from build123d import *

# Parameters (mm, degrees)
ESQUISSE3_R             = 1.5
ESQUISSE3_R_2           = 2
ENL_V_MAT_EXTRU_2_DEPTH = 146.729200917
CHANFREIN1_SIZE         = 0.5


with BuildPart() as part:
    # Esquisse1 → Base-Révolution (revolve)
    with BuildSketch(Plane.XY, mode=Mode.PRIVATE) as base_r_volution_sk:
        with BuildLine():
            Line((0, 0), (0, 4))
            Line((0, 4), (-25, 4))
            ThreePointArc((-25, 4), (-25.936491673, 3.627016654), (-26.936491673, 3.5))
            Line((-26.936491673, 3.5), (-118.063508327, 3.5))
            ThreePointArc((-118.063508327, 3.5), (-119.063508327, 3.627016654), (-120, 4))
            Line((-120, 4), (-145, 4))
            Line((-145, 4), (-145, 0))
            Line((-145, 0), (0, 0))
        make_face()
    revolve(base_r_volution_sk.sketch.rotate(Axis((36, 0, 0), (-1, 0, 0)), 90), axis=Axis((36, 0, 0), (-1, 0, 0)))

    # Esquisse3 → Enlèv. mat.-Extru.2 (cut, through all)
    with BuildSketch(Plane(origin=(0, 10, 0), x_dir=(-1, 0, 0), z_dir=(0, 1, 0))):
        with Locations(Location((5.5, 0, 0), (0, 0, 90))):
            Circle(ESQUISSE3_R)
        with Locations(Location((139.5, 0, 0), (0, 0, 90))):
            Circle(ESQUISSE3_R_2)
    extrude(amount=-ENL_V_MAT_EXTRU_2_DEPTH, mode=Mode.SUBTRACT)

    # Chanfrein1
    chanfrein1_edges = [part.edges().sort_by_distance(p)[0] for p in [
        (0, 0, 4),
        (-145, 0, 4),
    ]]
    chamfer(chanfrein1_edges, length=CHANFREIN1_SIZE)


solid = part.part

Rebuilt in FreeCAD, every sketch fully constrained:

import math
import FreeCAD as App
import Part
import Sketcher

V = App.Vector
Q = App.Units.Quantity


def edges_at(feature, points):
    """Names of the edges that pass closest to the given points."""
    edges = feature.Shape.Edges
    near = lambda p: min(range(len(edges)), key=lambda i: edges[i].distToShape(Part.Vertex(*p))[0])
    return sorted({f"Edge{near(p) + 1}" for p in points})

doc = App.newDocument("Part")
body = doc.addObject("PartDesign::Body", "Body")

# Sketch on XY plane
sketch1 = body.newObject("Sketcher::SketchObject", "Sketch")
sketch1.AttachmentSupport = (doc.getObject("XY_Plane"), [""])
sketch1.MapMode = "FlatFace"
sketch1.addGeometry([
    Part.LineSegment(V(0, 0, 0), V(0, 4, 0)),  # 0
    Part.LineSegment(V(0, 4, 0), V(-25, 4, 0)),  # 1
    Part.ArcOfCircle(Part.Circle(V(-26.936492, 7.5, 0), V(0, 0, 1), 4), math.radians(-90), math.radians(-61.044976)),  # 2
    Part.LineSegment(V(-26.936492, 3.5, 0), V(-118.063508, 3.5, 0)),  # 3
    Part.ArcOfCircle(Part.Circle(V(-118.063508, 7.5, 0), V(0, 0, 1), 4), math.radians(-118.955024), math.radians(-90)),  # 4
    Part.LineSegment(V(-120, 4, 0), V(-145, 4, 0)),  # 5
    Part.LineSegment(V(-145, 4, 0), V(-145, 0, 0)),  # 6
    Part.LineSegment(V(-145, 0, 0), V(0, 0, 0)),  # 7
], False)
sketch1.addConstraint([
    Sketcher.Constraint("Coincident", 0, 2, 1, 1),
    Sketcher.Constraint("Coincident", 1, 2, 2, 2),
    Sketcher.Constraint("Tangent", 2, 1, 3, 1),
    Sketcher.Constraint("Tangent", 3, 2, 4, 2),
    Sketcher.Constraint("Coincident", 4, 1, 5, 1),
    Sketcher.Constraint("Coincident", 5, 2, 6, 1),
    Sketcher.Constraint("Coincident", 6, 2, 7, 1),
    Sketcher.Constraint("Coincident", 7, 2, 0, 1),
    Sketcher.Constraint("Vertical", 0),
    Sketcher.Constraint("Horizontal", 1),
    Sketcher.Constraint("Horizontal", 3),
    Sketcher.Constraint("Horizontal", 5),
    Sketcher.Constraint("Vertical", 6),
    Sketcher.Constraint("Horizontal", 7),
    Sketcher.Constraint("Coincident", 7, 2, -1, 1),
    Sketcher.Constraint("Equal", 2, 4),
    Sketcher.Constraint("Horizontal", 1, 2, 4, 1),
    Sketcher.Constraint("Equal", 1, 5),
    Sketcher.Constraint("Radius", 2, Q("4 mm")),
    Sketcher.Constraint("DistanceX", 1, 2, 1, 1, Q("25 mm")),
    Sketcher.Constraint("DistanceX", 7, 1, 7, 2, Q("145 mm")),
    Sketcher.Constraint("DistanceY", 0, 1, 0, 2, Q("4 mm")),
    Sketcher.Constraint("DistanceY", -1, 1, 2, 3, Q("7.5 mm")),
])
revolution = body.newObject("PartDesign::Revolution", "Revolution")
revolution.Profile = sketch1
revolution.ReferenceAxis = (sketch1, ["H_Axis"])
revolution.Angle = 360

# Sketch on XZ plane
sketch2 = body.newObject("Sketcher::SketchObject", "Sketch001")
sketch2.AttachmentSupport = (doc.getObject("XZ_Plane"), [""])
sketch2.MapMode = "FlatFace"
sketch2.AttachmentOffset = App.Placement(V(0, 0, -10), App.Rotation())
sketch2.addGeometry([
    Part.Circle(V(-5.5, 0, 0), V(0, 0, 1), 1.5),
    Part.Circle(V(-139.5, 0, 0), V(0, 0, 1), 2),
], False)
sketch2.addConstraint([
    Sketcher.Constraint("PointOnObject", 0, 3, -1),
    Sketcher.Constraint("PointOnObject", 1, 3, -1),
    Sketcher.Constraint("Diameter", 0, Q("3 mm")),
    Sketcher.Constraint("Diameter", 1, Q("4 mm")),
    Sketcher.Constraint("DistanceX", 1, 3, 0, 3, Q("134 mm")),
    Sketcher.Constraint("DistanceX", 0, 3, -1, 1, Q("5.5 mm")),
])
pocket1 = body.newObject("PartDesign::Pocket", "Pocket")
pocket1.Profile = sketch2
pocket1.Type = "ThroughAll"
pocket1.Reversed = True
doc.recompute()

chamfer = body.newObject("PartDesign::Chamfer", "Chamfer")
chamfer.Base = (pocket1, edges_at(pocket1, [(0, 0, 4), (-145, 0, 4)]))
chamfer.Size = 0.5

doc.recompute()
